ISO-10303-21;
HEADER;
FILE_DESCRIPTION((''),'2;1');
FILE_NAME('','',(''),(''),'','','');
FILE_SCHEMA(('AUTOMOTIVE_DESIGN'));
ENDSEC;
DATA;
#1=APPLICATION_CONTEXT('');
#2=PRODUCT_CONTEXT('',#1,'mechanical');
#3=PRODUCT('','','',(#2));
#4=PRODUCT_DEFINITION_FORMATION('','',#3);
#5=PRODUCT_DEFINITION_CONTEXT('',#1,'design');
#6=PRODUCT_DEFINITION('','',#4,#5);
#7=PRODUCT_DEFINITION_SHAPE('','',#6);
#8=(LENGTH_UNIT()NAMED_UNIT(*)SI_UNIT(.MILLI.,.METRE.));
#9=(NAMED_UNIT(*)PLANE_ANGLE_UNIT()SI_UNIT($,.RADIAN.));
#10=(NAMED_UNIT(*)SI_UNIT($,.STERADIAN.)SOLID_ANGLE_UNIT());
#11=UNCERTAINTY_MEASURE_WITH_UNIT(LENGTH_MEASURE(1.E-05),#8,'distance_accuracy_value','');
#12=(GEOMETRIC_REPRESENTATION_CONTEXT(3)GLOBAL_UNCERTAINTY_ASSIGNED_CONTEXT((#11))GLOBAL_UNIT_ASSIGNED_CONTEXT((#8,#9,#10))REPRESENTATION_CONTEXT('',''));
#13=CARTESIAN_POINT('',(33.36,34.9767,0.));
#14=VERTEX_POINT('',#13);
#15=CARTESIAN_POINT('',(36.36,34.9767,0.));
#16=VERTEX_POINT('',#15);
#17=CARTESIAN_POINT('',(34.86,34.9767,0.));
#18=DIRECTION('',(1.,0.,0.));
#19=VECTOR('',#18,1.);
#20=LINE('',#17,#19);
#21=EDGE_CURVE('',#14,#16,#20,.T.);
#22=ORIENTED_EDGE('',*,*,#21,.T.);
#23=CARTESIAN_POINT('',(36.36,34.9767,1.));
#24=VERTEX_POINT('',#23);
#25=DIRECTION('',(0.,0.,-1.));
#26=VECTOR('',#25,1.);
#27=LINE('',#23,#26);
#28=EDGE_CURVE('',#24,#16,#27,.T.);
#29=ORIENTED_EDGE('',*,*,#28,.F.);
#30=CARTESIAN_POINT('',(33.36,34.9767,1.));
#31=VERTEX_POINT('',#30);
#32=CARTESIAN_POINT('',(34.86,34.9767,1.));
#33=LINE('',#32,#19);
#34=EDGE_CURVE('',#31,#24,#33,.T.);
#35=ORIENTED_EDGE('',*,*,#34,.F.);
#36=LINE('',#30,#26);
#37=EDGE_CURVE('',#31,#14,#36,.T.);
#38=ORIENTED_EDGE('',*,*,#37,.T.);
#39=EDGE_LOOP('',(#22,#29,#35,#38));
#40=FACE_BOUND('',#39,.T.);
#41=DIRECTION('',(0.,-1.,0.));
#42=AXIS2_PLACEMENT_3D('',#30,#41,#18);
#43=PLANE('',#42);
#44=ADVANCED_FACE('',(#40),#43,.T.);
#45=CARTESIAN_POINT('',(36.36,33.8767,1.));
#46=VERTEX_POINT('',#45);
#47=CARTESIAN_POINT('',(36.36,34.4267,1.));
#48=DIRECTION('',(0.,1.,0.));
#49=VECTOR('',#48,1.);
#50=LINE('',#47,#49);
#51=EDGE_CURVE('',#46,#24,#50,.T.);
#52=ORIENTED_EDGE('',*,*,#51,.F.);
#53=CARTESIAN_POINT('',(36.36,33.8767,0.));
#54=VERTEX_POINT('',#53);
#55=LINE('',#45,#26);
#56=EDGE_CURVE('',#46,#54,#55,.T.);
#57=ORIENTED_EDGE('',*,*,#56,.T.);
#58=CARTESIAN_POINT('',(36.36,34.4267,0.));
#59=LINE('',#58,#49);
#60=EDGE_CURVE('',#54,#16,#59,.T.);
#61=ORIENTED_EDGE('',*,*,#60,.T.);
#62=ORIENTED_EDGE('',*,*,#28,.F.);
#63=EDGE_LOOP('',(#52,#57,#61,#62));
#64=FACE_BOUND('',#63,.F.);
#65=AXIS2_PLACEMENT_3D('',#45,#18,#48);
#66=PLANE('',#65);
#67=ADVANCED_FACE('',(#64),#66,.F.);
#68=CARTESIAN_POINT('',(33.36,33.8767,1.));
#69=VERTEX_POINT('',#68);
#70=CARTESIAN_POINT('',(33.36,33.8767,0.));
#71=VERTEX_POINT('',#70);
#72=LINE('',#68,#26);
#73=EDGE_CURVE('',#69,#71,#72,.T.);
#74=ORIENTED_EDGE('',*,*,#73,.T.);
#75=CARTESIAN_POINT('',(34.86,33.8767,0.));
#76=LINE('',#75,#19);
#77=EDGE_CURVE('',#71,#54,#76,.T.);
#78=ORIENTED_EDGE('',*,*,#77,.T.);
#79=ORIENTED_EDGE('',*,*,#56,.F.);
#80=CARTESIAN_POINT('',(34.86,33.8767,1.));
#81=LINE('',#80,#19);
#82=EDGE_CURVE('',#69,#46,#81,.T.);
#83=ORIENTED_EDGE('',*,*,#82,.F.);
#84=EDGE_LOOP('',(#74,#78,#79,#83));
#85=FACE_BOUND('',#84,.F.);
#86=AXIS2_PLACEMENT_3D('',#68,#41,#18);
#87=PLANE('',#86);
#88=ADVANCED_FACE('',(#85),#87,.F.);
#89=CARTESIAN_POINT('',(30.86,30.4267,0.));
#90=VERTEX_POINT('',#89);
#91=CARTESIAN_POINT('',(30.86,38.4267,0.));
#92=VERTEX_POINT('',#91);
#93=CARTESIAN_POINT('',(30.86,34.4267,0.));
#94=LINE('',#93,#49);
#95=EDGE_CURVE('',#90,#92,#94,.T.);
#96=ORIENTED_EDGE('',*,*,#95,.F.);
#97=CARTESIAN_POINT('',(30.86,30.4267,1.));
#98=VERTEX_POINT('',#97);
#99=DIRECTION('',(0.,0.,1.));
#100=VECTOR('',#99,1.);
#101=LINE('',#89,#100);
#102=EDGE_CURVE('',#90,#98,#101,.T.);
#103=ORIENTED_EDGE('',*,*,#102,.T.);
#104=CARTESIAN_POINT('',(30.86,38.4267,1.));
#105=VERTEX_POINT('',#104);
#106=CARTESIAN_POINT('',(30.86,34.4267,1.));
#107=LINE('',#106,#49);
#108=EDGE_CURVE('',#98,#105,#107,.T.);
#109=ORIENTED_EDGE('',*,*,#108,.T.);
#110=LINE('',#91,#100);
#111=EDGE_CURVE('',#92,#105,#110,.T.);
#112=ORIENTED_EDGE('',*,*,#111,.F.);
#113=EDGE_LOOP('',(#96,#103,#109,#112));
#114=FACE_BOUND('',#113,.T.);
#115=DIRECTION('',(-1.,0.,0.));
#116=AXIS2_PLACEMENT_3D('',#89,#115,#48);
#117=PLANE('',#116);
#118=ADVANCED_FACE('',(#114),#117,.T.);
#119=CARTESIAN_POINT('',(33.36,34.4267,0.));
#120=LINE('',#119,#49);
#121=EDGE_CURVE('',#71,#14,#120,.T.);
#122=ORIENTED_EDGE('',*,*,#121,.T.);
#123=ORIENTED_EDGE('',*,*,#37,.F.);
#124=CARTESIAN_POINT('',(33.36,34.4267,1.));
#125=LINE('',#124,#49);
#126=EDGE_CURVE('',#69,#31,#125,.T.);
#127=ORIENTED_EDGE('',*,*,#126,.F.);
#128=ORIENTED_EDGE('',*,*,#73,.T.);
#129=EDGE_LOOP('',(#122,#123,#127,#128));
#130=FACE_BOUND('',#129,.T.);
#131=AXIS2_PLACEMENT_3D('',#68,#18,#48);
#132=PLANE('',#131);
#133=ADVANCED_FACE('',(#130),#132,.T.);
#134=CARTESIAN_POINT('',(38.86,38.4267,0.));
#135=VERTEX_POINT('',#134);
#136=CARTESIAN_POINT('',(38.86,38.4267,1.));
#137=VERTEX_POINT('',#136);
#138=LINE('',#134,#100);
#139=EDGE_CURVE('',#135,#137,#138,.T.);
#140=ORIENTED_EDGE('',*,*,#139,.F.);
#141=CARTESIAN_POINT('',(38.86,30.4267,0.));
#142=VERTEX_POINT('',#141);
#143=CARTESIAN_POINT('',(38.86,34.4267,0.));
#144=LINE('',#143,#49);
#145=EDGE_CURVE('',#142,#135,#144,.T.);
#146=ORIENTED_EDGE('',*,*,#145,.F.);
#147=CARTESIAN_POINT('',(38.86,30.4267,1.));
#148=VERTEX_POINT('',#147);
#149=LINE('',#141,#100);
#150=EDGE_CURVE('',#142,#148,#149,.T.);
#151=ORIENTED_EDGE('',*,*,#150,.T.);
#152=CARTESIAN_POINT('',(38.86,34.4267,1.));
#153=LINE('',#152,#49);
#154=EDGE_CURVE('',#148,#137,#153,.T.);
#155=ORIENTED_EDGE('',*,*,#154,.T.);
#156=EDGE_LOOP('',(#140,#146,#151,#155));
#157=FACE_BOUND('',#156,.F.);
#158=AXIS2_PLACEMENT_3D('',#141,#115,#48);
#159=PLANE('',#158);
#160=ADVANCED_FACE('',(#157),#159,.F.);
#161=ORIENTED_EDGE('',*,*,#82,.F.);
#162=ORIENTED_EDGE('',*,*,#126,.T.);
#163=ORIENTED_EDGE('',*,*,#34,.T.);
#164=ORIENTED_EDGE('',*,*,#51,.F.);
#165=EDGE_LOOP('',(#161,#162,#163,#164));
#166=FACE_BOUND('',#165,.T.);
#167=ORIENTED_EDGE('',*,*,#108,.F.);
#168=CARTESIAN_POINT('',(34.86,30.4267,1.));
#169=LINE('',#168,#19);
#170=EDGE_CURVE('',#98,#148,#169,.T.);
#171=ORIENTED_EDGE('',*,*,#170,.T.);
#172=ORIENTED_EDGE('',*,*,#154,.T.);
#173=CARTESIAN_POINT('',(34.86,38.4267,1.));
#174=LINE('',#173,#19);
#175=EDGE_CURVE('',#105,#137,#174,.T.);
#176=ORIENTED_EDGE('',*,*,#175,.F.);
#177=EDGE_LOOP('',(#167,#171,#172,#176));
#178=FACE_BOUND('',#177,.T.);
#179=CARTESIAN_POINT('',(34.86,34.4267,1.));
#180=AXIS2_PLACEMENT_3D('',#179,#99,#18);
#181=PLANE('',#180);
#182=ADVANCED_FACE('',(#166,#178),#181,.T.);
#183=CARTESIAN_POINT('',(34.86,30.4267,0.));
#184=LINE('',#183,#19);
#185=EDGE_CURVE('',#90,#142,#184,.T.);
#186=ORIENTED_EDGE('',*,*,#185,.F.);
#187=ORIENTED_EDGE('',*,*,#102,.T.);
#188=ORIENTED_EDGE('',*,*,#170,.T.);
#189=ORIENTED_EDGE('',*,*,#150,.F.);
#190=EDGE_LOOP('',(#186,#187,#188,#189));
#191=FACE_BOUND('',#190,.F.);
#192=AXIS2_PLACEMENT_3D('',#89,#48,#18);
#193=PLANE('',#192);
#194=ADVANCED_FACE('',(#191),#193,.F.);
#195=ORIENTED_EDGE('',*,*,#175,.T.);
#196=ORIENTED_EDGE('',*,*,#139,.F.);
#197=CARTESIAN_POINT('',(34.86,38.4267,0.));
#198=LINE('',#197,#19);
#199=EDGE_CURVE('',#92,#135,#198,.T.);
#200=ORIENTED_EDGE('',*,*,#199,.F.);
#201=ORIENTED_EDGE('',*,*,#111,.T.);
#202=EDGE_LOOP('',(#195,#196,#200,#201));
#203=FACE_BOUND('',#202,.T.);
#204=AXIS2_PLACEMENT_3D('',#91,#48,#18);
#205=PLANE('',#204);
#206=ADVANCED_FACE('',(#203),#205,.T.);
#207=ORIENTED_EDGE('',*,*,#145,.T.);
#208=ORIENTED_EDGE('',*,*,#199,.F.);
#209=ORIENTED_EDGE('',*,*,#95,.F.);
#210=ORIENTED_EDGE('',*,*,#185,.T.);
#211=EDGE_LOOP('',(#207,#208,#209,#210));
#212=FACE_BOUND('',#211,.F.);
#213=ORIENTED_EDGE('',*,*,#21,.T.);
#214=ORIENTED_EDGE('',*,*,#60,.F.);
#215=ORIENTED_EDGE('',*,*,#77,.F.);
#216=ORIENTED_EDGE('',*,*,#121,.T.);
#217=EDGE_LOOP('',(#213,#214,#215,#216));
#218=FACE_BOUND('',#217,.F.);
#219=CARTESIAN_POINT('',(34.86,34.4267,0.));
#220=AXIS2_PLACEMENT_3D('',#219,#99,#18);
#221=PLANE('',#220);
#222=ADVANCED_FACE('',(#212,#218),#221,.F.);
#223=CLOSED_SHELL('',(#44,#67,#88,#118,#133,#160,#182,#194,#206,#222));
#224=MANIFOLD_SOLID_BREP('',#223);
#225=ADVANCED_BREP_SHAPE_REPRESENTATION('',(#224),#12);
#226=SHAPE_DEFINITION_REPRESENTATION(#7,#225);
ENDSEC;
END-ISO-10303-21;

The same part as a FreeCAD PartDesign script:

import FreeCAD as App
import Part
import Sketcher


def add_polygon(sketch, points):
    """Adds a closed chain of lines whose ends are joined by coincident constraints."""
    first, n = sketch.GeometryCount, len(points)
    for a, b in zip(points, points[1:] + points[:1]):
        sketch.addGeometry(Part.LineSegment(App.Vector(*a, 0), App.Vector(*b, 0)), False)
    for i in range(n):
        sketch.addConstraint(Sketcher.Constraint("Coincident", first + i, 2, first + (i + 1) % n, 1))

doc = App.newDocument("Part")
body = doc.addObject("PartDesign::Body", "Body")

# Sketch on XY plane
sketch1 = body.newObject("Sketcher::SketchObject", "Sketch")
sketch1.AttachmentSupport = (doc.getObject("XY_Plane"), [""])
sketch1.MapMode = "FlatFace"
sketch1.AttachmentOffset = App.Placement(App.Vector(0, 0, 1), App.Rotation())
add_polygon(sketch1, [(33.36, 34.9767), (33.36, 33.8767), (36.36, 33.8767), (36.36, 34.9767)])  # lines 0-3
sketch1.addConstraint([
    Sketcher.Constraint("Vertical", 0),
    Sketcher.Constraint("Horizontal", 1),
    Sketcher.Constraint("Vertical", 2),
    Sketcher.Constraint("Horizontal", 3),
    Sketcher.Constraint("DistanceX", 1, 1, 1, 2, 3.0),
    Sketcher.Constraint("DistanceY", 0, 2, 0, 1, 1.1),
    Sketcher.Constraint("DistanceX", -1, 1, 0, 2, 33.36),
    Sketcher.Constraint("DistanceY", -1, 1, 0, 2, 33.8767),
])
pad1 = body.newObject("PartDesign::Pad", "Pad")
pad1.Profile = sketch1
pad1.Length = 1
pad1.Reversed = True
body2 = doc.addObject("PartDesign::Body", "Body001")

# Sketch on XY plane
sketch2 = body2.newObject("Sketcher::SketchObject", "Sketch001")
sketch2.AttachmentSupport = (doc.getObject("XY_Plane001"), [""])
sketch2.MapMode = "FlatFace"
add_polygon(sketch2, [(30.86, 38.4267), (30.86, 30.4267), (38.86, 30.4267), (38.86, 38.4267)])  # lines 0-3
sketch2.addConstraint([
    Sketcher.Constraint("Vertical", 0),
    Sketcher.Constraint("Horizontal", 1),
    Sketcher.Constraint("Vertical", 2),
    Sketcher.Constraint("Horizontal", 3),
    Sketcher.Constraint("Equal", 3, 0),
    Sketcher.Constraint("DistanceX", 1, 1, 1, 2, 8.0),
    Sketcher.Constraint("DistanceX", -1, 1, 0, 2, 30.86),
    Sketcher.Constraint("DistanceY", -1, 1, 0, 2, 30.4267),
])
pad2 = body2.newObject("PartDesign::Pad", "Pad001")
pad2.Profile = sketch2
pad2.Length = 1
doc.recompute()

boolean = body2.newObject("PartDesign::Boolean", "Boolean")
boolean.Type = "Cut"
boolean.addObjects([body])

doc.recompute()
